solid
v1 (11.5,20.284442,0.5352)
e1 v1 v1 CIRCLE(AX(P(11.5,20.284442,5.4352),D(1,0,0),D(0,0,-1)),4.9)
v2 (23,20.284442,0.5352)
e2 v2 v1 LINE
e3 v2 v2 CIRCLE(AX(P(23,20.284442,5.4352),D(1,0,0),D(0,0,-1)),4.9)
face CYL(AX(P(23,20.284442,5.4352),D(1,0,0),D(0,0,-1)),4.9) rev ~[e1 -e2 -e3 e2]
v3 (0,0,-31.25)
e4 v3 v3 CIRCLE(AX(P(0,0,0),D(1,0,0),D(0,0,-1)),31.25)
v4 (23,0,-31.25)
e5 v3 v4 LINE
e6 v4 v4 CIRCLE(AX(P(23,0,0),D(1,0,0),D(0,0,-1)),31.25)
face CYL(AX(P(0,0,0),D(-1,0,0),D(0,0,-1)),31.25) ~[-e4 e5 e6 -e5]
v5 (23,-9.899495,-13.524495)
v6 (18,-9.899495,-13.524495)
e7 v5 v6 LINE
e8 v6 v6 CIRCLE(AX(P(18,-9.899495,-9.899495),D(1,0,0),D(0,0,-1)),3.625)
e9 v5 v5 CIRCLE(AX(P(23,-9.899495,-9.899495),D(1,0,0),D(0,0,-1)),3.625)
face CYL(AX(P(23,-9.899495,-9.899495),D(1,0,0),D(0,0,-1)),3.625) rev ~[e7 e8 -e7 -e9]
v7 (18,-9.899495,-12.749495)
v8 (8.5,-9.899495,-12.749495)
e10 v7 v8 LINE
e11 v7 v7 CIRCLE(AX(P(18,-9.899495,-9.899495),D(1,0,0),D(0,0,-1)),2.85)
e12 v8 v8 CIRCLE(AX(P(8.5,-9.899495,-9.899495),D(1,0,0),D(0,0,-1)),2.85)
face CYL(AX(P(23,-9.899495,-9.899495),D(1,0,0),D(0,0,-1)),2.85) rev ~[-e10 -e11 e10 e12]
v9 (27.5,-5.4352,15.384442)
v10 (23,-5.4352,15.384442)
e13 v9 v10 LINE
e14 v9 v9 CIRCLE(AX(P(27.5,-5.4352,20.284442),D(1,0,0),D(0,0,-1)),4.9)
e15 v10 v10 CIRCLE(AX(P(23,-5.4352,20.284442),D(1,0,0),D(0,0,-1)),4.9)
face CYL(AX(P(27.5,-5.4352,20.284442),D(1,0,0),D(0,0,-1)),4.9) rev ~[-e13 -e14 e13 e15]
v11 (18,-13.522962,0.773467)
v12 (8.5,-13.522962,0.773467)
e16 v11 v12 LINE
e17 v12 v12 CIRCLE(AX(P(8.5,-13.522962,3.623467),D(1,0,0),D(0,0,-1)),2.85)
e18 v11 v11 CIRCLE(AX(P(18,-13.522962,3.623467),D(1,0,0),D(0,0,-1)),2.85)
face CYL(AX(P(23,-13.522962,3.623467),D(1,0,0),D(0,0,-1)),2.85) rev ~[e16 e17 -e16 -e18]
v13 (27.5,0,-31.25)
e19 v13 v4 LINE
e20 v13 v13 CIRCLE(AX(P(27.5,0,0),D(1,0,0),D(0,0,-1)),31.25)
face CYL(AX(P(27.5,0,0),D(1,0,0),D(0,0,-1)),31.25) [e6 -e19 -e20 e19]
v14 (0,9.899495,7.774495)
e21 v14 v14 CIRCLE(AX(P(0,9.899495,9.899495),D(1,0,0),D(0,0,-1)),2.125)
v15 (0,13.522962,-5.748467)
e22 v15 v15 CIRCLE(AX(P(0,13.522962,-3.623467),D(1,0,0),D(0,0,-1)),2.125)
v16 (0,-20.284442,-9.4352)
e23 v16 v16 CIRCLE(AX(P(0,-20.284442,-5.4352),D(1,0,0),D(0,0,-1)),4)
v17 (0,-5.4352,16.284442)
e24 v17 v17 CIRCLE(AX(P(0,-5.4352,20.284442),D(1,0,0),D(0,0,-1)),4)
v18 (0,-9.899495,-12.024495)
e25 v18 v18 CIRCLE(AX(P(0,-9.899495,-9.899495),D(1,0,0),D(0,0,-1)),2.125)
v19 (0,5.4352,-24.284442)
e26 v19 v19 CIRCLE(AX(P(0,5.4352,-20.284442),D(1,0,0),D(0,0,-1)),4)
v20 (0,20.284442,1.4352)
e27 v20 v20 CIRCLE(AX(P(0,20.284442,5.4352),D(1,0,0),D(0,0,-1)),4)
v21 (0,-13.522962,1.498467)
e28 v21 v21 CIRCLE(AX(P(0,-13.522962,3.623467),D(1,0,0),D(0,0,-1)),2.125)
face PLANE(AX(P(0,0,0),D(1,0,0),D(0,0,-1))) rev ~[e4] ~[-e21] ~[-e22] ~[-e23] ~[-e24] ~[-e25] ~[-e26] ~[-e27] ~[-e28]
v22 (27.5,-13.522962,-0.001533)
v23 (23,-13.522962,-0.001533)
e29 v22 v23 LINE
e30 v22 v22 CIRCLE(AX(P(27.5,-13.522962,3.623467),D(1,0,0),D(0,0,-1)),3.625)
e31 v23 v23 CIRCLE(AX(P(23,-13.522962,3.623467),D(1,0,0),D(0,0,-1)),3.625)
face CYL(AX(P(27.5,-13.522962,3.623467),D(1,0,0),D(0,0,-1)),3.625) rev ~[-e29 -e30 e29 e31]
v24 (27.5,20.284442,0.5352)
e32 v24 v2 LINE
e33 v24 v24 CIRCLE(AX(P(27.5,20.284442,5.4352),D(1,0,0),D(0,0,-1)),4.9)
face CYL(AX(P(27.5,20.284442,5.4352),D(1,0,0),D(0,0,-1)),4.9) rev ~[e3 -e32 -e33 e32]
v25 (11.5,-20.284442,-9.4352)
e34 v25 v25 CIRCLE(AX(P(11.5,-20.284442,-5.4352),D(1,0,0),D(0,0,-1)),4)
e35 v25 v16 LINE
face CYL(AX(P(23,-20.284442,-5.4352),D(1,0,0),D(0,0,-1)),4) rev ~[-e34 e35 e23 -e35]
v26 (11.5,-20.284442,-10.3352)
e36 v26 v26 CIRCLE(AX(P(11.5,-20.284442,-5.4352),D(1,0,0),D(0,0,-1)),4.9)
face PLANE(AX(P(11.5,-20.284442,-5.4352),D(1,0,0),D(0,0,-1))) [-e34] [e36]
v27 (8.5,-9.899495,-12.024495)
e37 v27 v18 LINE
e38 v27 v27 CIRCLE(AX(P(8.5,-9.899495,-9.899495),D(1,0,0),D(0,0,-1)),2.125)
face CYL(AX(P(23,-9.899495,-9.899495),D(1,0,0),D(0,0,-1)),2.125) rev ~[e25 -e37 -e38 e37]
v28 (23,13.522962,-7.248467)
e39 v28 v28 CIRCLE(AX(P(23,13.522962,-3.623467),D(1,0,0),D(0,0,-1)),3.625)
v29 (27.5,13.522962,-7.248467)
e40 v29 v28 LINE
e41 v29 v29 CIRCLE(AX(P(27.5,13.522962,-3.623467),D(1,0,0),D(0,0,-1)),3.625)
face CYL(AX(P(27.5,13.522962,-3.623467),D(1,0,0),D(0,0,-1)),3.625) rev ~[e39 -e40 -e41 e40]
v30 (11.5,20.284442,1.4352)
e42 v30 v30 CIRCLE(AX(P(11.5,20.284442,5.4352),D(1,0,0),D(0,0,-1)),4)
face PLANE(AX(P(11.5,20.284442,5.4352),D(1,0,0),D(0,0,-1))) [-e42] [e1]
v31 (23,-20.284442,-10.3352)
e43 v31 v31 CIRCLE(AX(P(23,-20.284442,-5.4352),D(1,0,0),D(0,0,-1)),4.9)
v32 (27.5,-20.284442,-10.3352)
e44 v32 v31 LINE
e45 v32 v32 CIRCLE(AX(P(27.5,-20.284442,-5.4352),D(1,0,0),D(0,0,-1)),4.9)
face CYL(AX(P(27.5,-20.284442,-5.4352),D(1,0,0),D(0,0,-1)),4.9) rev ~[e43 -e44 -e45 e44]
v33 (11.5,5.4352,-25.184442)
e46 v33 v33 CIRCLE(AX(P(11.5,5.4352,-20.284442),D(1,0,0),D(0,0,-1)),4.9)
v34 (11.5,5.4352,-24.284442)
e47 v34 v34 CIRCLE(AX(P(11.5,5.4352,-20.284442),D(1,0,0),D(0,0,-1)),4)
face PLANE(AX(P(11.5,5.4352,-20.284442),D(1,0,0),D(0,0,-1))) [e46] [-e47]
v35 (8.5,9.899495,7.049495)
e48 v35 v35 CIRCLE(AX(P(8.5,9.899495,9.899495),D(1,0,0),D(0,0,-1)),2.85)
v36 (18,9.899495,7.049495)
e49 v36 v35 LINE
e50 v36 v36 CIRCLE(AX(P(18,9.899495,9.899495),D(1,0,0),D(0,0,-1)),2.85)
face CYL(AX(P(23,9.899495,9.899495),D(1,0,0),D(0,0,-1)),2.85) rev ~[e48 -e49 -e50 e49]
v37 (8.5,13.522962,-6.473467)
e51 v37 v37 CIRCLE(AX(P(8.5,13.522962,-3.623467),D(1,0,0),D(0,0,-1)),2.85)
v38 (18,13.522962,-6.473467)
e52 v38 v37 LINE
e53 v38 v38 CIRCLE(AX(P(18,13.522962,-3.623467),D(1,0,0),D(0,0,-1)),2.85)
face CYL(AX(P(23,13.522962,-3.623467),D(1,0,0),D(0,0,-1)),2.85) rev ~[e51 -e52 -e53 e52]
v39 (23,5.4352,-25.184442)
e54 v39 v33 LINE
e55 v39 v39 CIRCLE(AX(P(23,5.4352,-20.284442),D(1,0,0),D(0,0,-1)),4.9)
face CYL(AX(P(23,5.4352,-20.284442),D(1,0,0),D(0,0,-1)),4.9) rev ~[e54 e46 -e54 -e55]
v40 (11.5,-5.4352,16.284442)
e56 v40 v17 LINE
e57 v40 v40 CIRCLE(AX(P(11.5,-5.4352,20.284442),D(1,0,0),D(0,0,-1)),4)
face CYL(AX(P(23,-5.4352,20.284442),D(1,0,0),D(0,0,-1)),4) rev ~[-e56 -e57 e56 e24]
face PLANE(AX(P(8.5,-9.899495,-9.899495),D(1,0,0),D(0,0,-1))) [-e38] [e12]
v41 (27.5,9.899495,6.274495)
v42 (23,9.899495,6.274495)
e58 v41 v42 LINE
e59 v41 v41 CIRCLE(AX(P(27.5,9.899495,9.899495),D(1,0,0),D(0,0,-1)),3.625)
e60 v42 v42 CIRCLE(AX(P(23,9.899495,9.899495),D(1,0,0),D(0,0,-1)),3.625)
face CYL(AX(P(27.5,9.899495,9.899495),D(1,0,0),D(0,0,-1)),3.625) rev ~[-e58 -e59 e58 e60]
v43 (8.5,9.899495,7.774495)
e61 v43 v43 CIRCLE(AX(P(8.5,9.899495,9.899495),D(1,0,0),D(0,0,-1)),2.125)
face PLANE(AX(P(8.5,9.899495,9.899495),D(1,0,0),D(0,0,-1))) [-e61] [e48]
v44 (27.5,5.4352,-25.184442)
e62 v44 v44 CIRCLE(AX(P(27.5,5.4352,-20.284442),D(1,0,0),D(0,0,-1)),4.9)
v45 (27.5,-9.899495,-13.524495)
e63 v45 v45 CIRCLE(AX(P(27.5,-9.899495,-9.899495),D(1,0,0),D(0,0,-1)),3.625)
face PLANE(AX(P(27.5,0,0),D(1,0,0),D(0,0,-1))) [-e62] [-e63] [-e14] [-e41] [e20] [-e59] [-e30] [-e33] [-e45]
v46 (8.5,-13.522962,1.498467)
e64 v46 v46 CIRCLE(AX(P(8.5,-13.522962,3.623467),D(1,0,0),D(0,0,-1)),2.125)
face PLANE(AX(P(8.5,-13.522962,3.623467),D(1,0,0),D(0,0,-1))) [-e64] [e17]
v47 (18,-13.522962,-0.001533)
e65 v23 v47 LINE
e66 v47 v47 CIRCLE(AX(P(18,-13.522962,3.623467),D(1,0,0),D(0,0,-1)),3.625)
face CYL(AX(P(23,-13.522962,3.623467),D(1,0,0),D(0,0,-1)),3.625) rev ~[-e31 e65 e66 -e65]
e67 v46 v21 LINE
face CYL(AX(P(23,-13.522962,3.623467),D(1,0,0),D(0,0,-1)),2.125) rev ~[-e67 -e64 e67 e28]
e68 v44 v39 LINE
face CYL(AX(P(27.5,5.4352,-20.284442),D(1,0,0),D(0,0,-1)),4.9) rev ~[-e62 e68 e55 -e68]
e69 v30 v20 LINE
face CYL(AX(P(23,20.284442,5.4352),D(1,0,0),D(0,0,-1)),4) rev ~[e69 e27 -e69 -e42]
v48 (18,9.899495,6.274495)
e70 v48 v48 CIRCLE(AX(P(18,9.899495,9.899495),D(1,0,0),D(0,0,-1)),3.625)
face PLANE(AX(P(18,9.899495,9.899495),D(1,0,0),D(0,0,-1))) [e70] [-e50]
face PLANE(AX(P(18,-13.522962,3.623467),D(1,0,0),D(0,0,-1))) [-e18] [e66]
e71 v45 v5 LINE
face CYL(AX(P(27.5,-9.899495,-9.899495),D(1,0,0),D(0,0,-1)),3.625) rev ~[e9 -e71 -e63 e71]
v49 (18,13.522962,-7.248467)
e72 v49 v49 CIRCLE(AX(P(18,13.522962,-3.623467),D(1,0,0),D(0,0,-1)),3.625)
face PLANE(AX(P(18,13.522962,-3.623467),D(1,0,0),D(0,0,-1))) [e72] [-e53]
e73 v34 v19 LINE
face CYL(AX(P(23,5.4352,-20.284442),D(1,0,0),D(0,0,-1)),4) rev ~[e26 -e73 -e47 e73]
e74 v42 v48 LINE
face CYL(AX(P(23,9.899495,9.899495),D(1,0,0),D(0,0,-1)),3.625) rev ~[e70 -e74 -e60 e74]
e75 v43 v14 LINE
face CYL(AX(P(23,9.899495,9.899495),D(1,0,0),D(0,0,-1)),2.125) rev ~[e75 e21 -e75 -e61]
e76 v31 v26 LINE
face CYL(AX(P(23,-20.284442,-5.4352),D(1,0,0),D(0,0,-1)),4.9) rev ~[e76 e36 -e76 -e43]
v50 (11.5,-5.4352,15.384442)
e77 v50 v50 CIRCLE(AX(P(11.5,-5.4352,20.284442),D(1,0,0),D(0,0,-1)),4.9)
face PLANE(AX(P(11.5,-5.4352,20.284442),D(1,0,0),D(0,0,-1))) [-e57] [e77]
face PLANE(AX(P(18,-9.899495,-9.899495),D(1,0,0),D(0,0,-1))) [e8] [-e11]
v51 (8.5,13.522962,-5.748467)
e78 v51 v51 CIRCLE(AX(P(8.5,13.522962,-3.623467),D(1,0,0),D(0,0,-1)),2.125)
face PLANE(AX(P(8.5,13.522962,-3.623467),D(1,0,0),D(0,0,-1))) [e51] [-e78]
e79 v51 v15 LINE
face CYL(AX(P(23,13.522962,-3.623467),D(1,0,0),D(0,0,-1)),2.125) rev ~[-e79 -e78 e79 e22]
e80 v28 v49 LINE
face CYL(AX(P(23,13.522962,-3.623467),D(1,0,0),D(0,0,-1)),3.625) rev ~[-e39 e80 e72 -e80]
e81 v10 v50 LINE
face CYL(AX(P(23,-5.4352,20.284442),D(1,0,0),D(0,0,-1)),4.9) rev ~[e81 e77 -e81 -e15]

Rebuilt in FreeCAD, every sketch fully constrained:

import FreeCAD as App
import Part
import Sketcher
from FreeCAD import Vector
Q = App.Units.Quantity

doc = App.newDocument("Part")
body = doc.addObject("PartDesign::Body", "Body")

sketch1 = body.newObject("Sketcher::SketchObject", "Sketch")
sketch1.AttachmentSupport = (doc.getObject("YZ_Plane"), [""])
sketch1.MapMode = "FlatFace"
sketch1.addGeometry(Part.Circle(Vector(0, 0, 0), Vector(0, 0, 1), 31), False)
sketch1.addConstraint([
    Sketcher.Constraint("Coincident", 0, 3, -1, 1),
    Sketcher.Constraint("Diameter", 0, Q("62.5 mm")),
])
pad1 = body.newObject("PartDesign::Pad", "Pad")
pad1.Profile = sketch1
pad1.Length = 23

sketch2 = body.newObject("Sketcher::SketchObject", "Sketch001")
sketch2.AttachmentSupport = (doc.getObject("YZ_Plane"), [""])
sketch2.MapMode = "FlatFace"
sketch2.AttachmentOffset = App.Placement(Vector(0, 0, 23), App.Rotation())
sketch2.addGeometry([
    Part.Circle(Vector(20.3, 5.4, 0), Vector(0, 0, 1), 4),
    Part.Circle(Vector(5.4, -20.3, 0), Vector(0, 0, 1), 4),
    Part.Circle(Vector(-20.3, -5.4, 0), Vector(0, 0, 1), 4),
    Part.Circle(Vector(-5.4, 20.3, 0), Vector(0, 0, 1), 4),
], False)
sketch2.addConstraint([
    Sketcher.Constraint("Equal", 0, 1),
    Sketcher.Constraint("Equal", 1, 2),
    Sketcher.Constraint("Equal", 2, 3),
    Sketcher.Constraint("Symmetric", 0, 3, 2, 3, -1, 1),
    Sketcher.Constraint("Symmetric", 1, 3, 3, 3, -1, 1),
    Sketcher.Constraint("Diameter", 0, Q("8 mm")),
    Sketcher.Constraint("DistanceY", -1, 1, 0, 3, Q("5.4352 mm")),
    Sketcher.Constraint("DistanceX", -1, 1, 1, 3, Q("5.4352 mm")),
    Sketcher.Constraint("DistanceX", -1, 1, 0, 3, Q("20.284442 mm")),
    Sketcher.Constraint("DistanceY", 1, 3, -1, 1, Q("20.284442 mm")),
])
pocket1 = body.newObject("PartDesign::Pocket", "Pocket")
pocket1.Profile = sketch2
pocket1.Type = "ThroughAll"

sketch3 = body.newObject("Sketcher::SketchObject", "Sketch002")
sketch3.AttachmentSupport = (doc.getObject("YZ_Plane"), [""])
sketch3.MapMode = "FlatFace"
sketch3.AttachmentOffset = App.Placement(Vector(0, 0, 23), App.Rotation())
sketch3.addGeometry([
    Part.Circle(Vector(20.3, 5.4, 0), Vector(0, 0, 1), 4.9),
    Part.Circle(Vector(5.4, -20.3, 0), Vector(0, 0, 1), 4.9),
    Part.Circle(Vector(-20.3, -5.4, 0), Vector(0, 0, 1), 4.9),
    Part.Circle(Vector(-5.4, 20.3, 0), Vector(0, 0, 1), 4.9),
], False)
sketch3.addConstraint([
    Sketcher.Constraint("Equal", 0, 1),
    Sketcher.Constraint("Equal", 1, 2),
    Sketcher.Constraint("Equal", 2, 3),
    Sketcher.Constraint("Symmetric", 0, 3, 2, 3, -1, 1),
    Sketcher.Constraint("Symmetric", 1, 3, 3, 3, -1, 1),
    Sketcher.Constraint("Diameter", 0, Q("9.8 mm")),
    Sketcher.Constraint("DistanceY", -1, 1, 0, 3, Q("5.4352 mm")),
    Sketcher.Constraint("DistanceX", -1, 1, 1, 3, Q("5.4352 mm")),
    Sketcher.Constraint("DistanceX", -1, 1, 0, 3, Q("20.284442 mm")),
    Sketcher.Constraint("DistanceY", 1, 3, -1, 1, Q("20.284442 mm")),
])
pocket2 = body.newObject("PartDesign::Pocket", "Pocket001")
pocket2.Profile = sketch3
pocket2.Length = 11.5

sketch4 = body.newObject("Sketcher::SketchObject", "Sketch003")
sketch4.AttachmentSupport = (doc.getObject("YZ_Plane"), [""])
sketch4.MapMode = "FlatFace"
sketch4.AttachmentOffset = App.Placement(Vector(0, 0, 23), App.Rotation())
sketch4.addGeometry([
    Part.Circle(Vector(9.9, 9.9, 0), Vector(0, 0, 1), 2.1),
    Part.Circle(Vector(13.5, -3.6, 0), Vector(0, 0, 1), 2.1),
    Part.Circle(Vector(-9.9, -9.9, 0), Vector(0, 0, 1), 2.1),
    Part.Circle(Vector(-13.5, 3.6, 0), Vector(0, 0, 1), 2.1),
], False)
sketch4.addConstraint([
    Sketcher.Constraint("Equal", 0, 1),
    Sketcher.Constraint("Equal", 1, 2),
    Sketcher.Constraint("Equal", 2, 3),
    Sketcher.Constraint("Symmetric", 0, 3, 2, 3, -1, 1),
    Sketcher.Constraint("Symmetric", 1, 3, 3, 3, -1, 1),
    Sketcher.Constraint("Diameter", 0, Q("4.25 mm")),
    Sketcher.Constraint("DistanceX", -1, 1, 1, 3, Q("13.522962 mm")),
    Sketcher.Constraint("DistanceY", 1, 3, 0, 3, Q("13.522962 mm")),
    Sketcher.Constraint("DistanceY", 2, 3, 1, 3, Q("6.276028 mm")),
    Sketcher.Constraint("DistanceX", 2, 3, 0, 3, Q("19.79899 mm")),
])
pocket3 = body.newObject("PartDesign::Pocket", "Pocket002")
pocket3.Profile = sketch4
pocket3.Type = "ThroughAll"

sketch5 = body.newObject("Sketcher::SketchObject", "Sketch004")
sketch5.AttachmentSupport = (doc.getObject("YZ_Plane"), [""])
sketch5.MapMode = "FlatFace"
sketch5.AttachmentOffset = App.Placement(Vector(0, 0, 23), App.Rotation())
sketch5.addGeometry([
    Part.Circle(Vector(9.9, 9.9, 0), Vector(0, 0, 1), 2.9),
    Part.Circle(Vector(13.5, -3.6, 0), Vector(0, 0, 1), 2.9),
    Part.Circle(Vector(-9.9, -9.9, 0), Vector(0, 0, 1), 2.9),
    Part.Circle(Vector(-13.5, 3.6, 0), Vector(0, 0, 1), 2.9),
], False)
sketch5.addConstraint([
    Sketcher.Constraint("Equal", 0, 1),
    Sketcher.Constraint("Equal", 1, 2),
    Sketcher.Constraint("Equal", 2, 3),
    Sketcher.Constraint("Symmetric", 0, 3, 2, 3, -1, 1),
    Sketcher.Constraint("Symmetric", 1, 3, 3, 3, -1, 1),
    Sketcher.Constraint("Diameter", 0, Q("5.7 mm")),
    Sketcher.Constraint("DistanceX", -1, 1, 1, 3, Q("13.522962 mm")),
    Sketcher.Constraint("DistanceY", 1, 3, 0, 3, Q("13.522962 mm")),
    Sketcher.Constraint("DistanceY", 2, 3, 1, 3, Q("6.276028 mm")),
    Sketcher.Constraint("DistanceX", 2, 3, 0, 3, Q("19.79899 mm")),
])
pocket4 = body.newObject("PartDesign::Pocket", "Pocket003")
pocket4.Profile = sketch5
pocket4.Length = 14.5

sketch6 = body.newObject("Sketcher::SketchObject", "Sketch005")
sketch6.AttachmentSupport = (doc.getObject("YZ_Plane"), [""])
sketch6.MapMode = "FlatFace"
sketch6.AttachmentOffset = App.Placement(Vector(0, 0, 23), App.Rotation())
sketch6.addGeometry([
    Part.Circle(Vector(9.9, 9.9, 0), Vector(0, 0, 1), 3.6),
    Part.Circle(Vector(13.5, -3.6, 0), Vector(0, 0, 1), 3.6),
    Part.Circle(Vector(-9.9, -9.9, 0), Vector(0, 0, 1), 3.6),
    Part.Circle(Vector(-13.5, 3.6, 0), Vector(0, 0, 1), 3.6),
], False)
sketch6.addConstraint([
    Sketcher.Constraint("Equal", 0, 1),
    Sketcher.Constraint("Equal", 1, 2),
    Sketcher.Constraint("Equal", 2, 3),
    Sketcher.Constraint("Symmetric", 0, 3, 2, 3, -1, 1),
    Sketcher.Constraint("Symmetric", 1, 3, 3, 3, -1, 1),
    Sketcher.Constraint("Diameter", 0, Q("7.25 mm")),
    Sketcher.Constraint("DistanceX", -1, 1, 1, 3, Q("13.522962 mm")),
    Sketcher.Constraint("DistanceY", 1, 3, 0, 3, Q("13.522962 mm")),
    Sketcher.Constraint("DistanceY", 2, 3, 1, 3, Q("6.276028 mm")),
    Sketcher.Constraint("DistanceX", 2, 3, 0, 3, Q("19.79899 mm")),
])
pocket5 = body.newObject("PartDesign::Pocket", "Pocket004")
pocket5.Profile = sketch6
pocket5.Length = 5

sketch7 = body.newObject("Sketcher::SketchObject", "Sketch006")
sketch7.AttachmentSupport = (doc.getObject("YZ_Plane"), [""])
sketch7.MapMode = "FlatFace"
sketch7.AttachmentOffset = App.Placement(Vector(0, 0, 27.5), App.Rotation())
sketch7.addGeometry([
    Part.Circle(Vector(0, 0, 0), Vector(0, 0, 1), 31.2),
    Part.Circle(Vector(-13.5, 3.6, 0), Vector(0, 0, 1), 3.6),
    Part.Circle(Vector(-5.4, 20.3, 0), Vector(0, 0, 1), 4.9),
    Part.Circle(Vector(-20.3, -5.4, 0), Vector(0, 0, 1), 4.9),
    Part.Circle(Vector(-9.9, -9.9, 0), Vector(0, 0, 1), 3.6),
    Part.Circle(Vector(9.9, 9.9, 0), Vector(0, 0, 1), 3.6),
    Part.Circle(Vector(20.3, 5.4, 0), Vector(0, 0, 1), 4.9),
    Part.Circle(Vector(5.4, -20.3, 0), Vector(0, 0, 1), 4.9),
    Part.Circle(Vector(13.5, -3.6, 0), Vector(0, 0, 1), 3.6),
], False)
sketch7.addConstraint([
    Sketcher.Constraint("Coincident", 0, 3, -1, 1),
    Sketcher.Constraint("Equal", 2, 3),
    Sketcher.Constraint("Equal", 1, 4),
    Sketcher.Constraint("Equal", 4, 5),
    Sketcher.Constraint("Equal", 3, 6),
    Sketcher.Constraint("Equal", 6, 7),
    Sketcher.Constraint("Equal", 5, 8),
    Sketcher.Constraint("Symmetric", 4, 3, 5, 3, -1, 1),
    Sketcher.Constraint("Symmetric", 3, 3, 6, 3, -1, 1),
    Sketcher.Constraint("Symmetric", 2, 3, 7, 3, -1, 1),
    Sketcher.Constraint("Symmetric", 1, 3, 8, 3, -1, 1),
    Sketcher.Constraint("Diameter", 0, Q("62.5 mm")),
    Sketcher.Constraint("Diameter", 2, Q("9.8 mm")),
    Sketcher.Constraint("Diameter", 1, Q("7.25 mm")),
    Sketcher.Constraint("DistanceX", 2, 3, -1, 1, Q("5.4352 mm")),
    Sketcher.Constraint("DistanceY", 3, 3, -1, 1, Q("5.4352 mm")),
    Sketcher.Constraint("DistanceX", 1, 3, -1, 1, Q("13.522962 mm")),
    Sketcher.Constraint("DistanceX", 3, 3, 1, 3, Q("6.761481 mm")),
    Sketcher.Constraint("DistanceY", 4, 3, 1, 3, Q("13.522962 mm")),
    Sketcher.Constraint("DistanceY", 1, 3, 5, 3, Q("6.276028 mm")),
    Sketcher.Constraint("DistanceX", 4, 3, 5, 3, Q("19.79899 mm")),
    Sketcher.Constraint("DistanceY", 7, 3, 1, 3, Q("23.907909 mm")),
])
pad2 = body.newObject("PartDesign::Pad", "Pad001")
pad2.Profile = sketch7
pad2.Length = 4.5
pad2.Reversed = True

doc.recompute()
